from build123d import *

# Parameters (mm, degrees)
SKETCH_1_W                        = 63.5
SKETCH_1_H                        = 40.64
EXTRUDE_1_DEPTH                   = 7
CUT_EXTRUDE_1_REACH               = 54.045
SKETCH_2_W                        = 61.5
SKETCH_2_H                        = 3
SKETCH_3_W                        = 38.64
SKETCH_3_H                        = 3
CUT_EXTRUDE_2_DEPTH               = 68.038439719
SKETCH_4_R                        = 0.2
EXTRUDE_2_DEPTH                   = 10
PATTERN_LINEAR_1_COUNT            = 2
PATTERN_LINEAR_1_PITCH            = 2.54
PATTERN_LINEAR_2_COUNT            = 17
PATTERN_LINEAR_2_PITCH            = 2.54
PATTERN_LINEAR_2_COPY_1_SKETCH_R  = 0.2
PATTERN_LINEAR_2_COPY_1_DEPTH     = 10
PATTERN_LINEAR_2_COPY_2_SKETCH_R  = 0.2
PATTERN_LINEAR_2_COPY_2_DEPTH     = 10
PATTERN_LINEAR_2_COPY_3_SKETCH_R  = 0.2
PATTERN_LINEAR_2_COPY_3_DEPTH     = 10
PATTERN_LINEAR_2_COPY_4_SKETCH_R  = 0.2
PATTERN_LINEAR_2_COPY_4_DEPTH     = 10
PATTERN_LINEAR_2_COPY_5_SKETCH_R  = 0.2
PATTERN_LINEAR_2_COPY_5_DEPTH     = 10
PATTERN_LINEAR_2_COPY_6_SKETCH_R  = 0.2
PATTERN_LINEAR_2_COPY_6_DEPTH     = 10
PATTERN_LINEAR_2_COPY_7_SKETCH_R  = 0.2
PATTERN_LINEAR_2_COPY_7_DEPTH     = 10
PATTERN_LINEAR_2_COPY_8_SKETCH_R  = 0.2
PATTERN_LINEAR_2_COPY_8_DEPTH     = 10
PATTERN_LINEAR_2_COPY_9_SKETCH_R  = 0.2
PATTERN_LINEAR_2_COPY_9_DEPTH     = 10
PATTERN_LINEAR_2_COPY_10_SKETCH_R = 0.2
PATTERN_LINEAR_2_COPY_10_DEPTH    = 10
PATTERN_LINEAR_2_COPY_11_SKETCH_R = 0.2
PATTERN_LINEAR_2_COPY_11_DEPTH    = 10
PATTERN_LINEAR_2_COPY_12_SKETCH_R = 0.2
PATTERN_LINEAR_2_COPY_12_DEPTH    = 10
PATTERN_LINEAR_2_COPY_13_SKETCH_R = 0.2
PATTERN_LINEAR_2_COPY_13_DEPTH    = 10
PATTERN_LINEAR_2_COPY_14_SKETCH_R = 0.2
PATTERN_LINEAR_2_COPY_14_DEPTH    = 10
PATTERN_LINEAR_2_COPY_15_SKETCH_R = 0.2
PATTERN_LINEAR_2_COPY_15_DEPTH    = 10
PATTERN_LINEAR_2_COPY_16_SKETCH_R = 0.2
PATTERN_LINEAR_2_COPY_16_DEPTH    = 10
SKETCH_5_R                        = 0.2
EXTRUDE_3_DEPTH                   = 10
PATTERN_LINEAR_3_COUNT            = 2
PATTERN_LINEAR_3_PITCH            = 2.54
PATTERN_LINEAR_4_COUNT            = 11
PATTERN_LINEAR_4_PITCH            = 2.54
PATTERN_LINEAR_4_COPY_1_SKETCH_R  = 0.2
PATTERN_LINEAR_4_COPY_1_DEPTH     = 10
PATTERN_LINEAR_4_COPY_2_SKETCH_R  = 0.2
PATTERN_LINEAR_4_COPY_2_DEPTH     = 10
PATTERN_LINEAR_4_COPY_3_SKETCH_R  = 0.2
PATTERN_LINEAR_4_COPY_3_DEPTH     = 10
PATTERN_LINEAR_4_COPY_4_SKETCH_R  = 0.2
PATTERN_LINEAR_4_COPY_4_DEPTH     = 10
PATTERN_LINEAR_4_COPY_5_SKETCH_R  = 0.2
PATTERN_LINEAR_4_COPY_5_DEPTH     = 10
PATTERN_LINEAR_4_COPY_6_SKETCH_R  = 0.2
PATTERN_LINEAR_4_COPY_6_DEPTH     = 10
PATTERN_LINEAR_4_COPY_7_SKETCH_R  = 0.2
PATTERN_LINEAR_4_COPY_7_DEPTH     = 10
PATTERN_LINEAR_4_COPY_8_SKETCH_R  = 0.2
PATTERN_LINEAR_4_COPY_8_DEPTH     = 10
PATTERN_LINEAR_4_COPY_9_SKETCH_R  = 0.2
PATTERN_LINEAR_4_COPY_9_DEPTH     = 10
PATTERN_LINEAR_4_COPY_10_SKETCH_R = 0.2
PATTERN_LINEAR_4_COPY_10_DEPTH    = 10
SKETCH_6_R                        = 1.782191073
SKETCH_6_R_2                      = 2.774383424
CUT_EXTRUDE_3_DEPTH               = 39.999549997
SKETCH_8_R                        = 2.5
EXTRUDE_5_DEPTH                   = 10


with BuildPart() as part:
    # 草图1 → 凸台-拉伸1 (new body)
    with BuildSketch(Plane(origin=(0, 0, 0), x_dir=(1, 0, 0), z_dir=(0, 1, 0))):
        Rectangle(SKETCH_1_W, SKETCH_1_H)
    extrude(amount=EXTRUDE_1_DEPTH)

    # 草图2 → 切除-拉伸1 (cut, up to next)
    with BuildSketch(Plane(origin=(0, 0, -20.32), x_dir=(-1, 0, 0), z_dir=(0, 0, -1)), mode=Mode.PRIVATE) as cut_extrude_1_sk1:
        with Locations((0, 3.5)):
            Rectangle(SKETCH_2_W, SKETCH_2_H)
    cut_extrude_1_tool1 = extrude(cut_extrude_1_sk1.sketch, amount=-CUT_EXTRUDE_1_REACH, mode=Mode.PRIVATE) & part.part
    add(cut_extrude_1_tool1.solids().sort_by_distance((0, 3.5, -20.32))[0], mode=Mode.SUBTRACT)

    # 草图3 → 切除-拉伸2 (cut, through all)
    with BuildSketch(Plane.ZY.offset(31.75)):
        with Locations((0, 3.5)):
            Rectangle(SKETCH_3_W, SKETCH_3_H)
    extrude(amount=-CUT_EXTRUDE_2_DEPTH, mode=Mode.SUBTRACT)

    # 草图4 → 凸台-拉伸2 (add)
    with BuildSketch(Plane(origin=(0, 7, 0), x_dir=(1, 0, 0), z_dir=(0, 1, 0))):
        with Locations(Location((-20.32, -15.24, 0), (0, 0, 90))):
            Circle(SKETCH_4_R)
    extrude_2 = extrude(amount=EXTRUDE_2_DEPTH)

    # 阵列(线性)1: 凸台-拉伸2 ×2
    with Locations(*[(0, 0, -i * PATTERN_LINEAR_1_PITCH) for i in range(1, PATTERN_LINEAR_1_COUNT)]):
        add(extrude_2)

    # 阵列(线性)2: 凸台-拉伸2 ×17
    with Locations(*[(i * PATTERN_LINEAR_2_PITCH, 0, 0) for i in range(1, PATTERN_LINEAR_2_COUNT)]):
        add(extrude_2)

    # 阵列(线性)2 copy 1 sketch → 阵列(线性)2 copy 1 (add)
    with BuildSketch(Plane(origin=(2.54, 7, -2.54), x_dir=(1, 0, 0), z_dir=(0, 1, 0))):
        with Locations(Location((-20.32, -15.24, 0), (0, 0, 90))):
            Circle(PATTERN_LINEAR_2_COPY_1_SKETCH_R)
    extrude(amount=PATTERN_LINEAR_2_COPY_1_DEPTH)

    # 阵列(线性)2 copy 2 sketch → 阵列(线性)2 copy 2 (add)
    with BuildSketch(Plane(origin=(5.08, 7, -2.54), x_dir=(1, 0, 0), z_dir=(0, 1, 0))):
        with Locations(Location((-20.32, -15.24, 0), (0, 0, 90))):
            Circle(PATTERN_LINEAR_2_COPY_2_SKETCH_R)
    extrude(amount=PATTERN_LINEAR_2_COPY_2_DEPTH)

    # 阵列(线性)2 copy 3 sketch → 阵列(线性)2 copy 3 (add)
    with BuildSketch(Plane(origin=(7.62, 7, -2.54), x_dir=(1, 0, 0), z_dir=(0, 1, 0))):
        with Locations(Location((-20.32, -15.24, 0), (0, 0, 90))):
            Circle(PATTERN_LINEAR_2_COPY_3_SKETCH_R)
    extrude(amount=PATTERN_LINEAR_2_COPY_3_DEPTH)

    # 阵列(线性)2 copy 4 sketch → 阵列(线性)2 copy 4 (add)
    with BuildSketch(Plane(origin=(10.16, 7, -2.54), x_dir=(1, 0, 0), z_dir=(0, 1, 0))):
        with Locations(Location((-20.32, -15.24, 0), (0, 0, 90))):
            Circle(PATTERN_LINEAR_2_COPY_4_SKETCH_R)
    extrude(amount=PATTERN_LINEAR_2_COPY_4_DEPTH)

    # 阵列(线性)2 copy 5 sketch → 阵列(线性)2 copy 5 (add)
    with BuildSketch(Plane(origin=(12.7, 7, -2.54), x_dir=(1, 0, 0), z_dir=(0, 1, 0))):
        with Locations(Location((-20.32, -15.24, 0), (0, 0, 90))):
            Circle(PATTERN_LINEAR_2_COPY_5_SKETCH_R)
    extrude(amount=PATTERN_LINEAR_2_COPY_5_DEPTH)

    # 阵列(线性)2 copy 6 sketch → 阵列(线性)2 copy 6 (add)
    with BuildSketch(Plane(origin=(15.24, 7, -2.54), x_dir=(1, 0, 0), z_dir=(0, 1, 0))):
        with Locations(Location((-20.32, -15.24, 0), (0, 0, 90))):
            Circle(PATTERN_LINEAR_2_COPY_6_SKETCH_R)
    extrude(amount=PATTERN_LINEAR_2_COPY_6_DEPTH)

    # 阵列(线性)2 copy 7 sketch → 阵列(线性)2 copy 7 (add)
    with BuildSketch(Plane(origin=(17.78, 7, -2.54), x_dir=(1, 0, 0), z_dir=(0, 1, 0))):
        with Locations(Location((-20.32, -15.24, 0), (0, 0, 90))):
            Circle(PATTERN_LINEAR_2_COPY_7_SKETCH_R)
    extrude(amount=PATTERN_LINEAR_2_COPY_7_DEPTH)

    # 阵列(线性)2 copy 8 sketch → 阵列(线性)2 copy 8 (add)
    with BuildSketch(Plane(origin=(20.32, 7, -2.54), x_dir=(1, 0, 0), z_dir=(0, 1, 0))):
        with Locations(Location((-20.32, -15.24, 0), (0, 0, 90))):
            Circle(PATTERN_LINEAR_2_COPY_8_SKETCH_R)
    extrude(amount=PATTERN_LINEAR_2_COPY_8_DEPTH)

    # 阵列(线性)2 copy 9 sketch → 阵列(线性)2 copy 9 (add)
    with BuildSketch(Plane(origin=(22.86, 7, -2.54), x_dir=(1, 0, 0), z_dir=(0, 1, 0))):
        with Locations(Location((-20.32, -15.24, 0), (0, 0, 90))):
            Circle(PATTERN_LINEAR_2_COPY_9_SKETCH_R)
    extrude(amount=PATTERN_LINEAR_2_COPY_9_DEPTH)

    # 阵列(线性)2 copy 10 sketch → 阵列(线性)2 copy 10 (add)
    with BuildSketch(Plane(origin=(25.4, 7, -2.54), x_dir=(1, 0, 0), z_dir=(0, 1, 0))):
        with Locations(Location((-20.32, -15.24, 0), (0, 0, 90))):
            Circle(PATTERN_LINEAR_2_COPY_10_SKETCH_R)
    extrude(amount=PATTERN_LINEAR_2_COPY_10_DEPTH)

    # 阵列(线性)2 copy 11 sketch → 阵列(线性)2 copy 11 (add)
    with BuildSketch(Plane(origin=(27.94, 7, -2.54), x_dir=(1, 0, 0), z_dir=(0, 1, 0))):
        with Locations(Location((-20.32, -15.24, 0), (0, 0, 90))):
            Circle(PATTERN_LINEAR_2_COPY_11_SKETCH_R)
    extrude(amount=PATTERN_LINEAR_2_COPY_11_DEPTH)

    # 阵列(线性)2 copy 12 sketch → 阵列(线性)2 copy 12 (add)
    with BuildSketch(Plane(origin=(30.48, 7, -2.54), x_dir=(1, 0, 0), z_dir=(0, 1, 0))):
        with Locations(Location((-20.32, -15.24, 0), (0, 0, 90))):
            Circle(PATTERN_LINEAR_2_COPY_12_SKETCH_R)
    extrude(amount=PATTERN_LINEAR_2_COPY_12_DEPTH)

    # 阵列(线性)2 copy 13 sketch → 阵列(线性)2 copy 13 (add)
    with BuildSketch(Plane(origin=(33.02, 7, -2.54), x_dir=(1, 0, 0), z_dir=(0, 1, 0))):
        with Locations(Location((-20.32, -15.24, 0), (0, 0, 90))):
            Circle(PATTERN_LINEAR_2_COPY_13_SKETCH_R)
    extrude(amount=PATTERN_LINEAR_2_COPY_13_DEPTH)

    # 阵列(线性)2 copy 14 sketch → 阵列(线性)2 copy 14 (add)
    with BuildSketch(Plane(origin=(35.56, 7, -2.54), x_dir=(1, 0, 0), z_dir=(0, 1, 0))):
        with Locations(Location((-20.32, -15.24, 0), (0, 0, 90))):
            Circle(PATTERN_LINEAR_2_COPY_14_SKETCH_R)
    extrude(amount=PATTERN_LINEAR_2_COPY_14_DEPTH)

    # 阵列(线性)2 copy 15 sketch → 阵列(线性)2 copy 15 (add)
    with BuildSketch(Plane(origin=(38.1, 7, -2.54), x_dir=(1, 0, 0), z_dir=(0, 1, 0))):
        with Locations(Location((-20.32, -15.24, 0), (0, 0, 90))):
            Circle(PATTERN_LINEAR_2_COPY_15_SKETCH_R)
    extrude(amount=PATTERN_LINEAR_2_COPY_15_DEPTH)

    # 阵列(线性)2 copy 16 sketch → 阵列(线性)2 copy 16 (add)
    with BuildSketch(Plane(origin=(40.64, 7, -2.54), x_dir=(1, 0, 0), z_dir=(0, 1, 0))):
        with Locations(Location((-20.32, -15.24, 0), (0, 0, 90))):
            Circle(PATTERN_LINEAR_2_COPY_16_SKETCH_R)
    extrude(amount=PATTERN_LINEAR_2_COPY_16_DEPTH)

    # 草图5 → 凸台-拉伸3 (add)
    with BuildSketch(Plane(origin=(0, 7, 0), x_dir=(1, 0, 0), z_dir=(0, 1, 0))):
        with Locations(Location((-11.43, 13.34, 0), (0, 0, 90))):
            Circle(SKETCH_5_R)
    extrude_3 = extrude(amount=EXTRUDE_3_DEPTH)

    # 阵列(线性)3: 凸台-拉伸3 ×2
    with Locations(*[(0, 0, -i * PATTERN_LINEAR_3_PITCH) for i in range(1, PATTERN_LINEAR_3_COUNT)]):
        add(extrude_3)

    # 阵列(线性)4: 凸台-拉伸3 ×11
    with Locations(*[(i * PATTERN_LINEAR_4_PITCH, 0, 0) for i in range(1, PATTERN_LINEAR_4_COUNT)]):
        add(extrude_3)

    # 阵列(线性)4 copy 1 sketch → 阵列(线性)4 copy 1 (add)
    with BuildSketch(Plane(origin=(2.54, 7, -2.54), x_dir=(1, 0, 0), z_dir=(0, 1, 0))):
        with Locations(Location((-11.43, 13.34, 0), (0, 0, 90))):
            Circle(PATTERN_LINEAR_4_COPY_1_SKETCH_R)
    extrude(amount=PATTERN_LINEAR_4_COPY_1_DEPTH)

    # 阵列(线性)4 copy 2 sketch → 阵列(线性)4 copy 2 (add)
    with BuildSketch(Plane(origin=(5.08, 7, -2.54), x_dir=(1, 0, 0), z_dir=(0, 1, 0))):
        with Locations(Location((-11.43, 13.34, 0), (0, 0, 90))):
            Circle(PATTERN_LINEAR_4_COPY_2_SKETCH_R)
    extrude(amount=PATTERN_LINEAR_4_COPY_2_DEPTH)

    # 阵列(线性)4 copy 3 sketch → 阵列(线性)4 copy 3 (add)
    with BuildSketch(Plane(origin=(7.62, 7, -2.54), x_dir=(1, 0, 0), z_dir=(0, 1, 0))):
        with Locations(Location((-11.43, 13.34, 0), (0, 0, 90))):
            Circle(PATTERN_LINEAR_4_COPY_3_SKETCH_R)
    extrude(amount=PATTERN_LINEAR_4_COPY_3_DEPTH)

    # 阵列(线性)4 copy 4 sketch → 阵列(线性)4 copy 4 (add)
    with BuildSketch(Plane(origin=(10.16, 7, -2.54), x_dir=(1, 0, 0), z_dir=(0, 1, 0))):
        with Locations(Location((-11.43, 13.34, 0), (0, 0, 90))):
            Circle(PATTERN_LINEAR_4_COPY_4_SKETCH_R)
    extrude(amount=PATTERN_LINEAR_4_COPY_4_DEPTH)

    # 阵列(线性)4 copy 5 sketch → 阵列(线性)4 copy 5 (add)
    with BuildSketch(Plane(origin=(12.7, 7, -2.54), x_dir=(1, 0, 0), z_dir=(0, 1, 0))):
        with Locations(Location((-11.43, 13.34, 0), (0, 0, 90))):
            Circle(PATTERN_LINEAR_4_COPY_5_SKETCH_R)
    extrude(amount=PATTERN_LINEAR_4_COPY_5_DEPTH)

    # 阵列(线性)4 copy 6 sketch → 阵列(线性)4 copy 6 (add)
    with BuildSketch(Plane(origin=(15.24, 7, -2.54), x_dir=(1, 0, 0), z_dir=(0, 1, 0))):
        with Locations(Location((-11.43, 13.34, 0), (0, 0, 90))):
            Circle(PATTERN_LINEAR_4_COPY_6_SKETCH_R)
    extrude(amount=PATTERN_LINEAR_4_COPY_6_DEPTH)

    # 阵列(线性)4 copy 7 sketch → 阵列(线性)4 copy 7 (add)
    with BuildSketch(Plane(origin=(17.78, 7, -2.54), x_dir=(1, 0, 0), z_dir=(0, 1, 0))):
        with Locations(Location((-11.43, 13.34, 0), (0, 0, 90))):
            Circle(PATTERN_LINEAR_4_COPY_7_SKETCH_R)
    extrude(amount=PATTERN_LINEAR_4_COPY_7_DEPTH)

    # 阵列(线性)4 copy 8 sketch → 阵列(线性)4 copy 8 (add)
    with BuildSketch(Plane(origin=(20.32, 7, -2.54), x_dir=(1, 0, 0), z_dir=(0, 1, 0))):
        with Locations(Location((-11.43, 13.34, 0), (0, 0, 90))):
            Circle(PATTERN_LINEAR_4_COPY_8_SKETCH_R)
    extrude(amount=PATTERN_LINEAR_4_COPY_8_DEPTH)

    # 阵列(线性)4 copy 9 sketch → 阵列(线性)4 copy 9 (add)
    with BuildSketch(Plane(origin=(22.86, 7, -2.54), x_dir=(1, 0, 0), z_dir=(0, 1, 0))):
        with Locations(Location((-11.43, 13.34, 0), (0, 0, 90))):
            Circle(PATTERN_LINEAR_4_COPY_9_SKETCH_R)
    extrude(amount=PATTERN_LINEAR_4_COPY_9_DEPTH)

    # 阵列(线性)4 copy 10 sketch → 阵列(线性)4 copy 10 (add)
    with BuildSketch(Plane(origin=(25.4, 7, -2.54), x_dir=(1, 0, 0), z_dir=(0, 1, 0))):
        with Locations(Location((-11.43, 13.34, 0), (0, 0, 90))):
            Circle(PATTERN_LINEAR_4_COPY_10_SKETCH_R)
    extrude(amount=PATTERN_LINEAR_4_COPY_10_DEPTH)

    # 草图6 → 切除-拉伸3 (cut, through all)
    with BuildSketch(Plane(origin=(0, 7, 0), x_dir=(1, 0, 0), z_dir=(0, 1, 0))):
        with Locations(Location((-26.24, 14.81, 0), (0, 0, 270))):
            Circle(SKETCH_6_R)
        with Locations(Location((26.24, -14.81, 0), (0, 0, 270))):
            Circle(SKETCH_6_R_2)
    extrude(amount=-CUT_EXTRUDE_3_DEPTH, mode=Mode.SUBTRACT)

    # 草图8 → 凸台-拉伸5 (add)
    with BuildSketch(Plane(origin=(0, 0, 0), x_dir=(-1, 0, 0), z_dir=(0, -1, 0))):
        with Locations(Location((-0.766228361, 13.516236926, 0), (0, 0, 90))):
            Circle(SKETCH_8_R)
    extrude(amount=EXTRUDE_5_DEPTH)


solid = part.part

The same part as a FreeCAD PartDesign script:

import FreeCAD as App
import Part
import Sketcher
Q = App.Units.Quantity


def add_polygon(sketch, points):
    """Adds a closed chain of lines whose ends are joined by coincident constraints."""
    first, n = sketch.GeometryCount, len(points)
    for a, b in zip(points, points[1:] + points[:1]):
        sketch.addGeometry(Part.LineSegment(App.Vector(*a, 0), App.Vector(*b, 0)), False)
    for i in range(n):
        sketch.addConstraint(Sketcher.Constraint("Coincident", first + i, 2, first + (i + 1) % n, 1))

doc = App.newDocument("Part")
body = doc.addObject("PartDesign::Body", "Body")

sketch1 = body.newObject("Sketcher::SketchObject", "Sketch")
sketch1.AttachmentSupport = (doc.getObject("XZ_Plane"), [""])
sketch1.MapMode = "FlatFace"
add_polygon(sketch1, [(-31.75, -20.32), (-31.75, 20.32), (31.75, 20.32), (31.75, -20.32)])
sketch1.addConstraint(Sketcher.Constraint("Vertical", 0))
sketch1.addConstraint(Sketcher.Constraint("Horizontal", 1))
sketch1.addConstraint(Sketcher.Constraint("Vertical", 2))
sketch1.addConstraint(Sketcher.Constraint("Horizontal", 3))
sketch1.addConstraint(Sketcher.Constraint("Symmetric", 0, 2, 2, 2, -1, 1))
sketch1.addConstraint(Sketcher.Constraint("DistanceX", 1, 1, 1, 2, Q("63.5 mm")))
sketch1.addConstraint(Sketcher.Constraint("DistanceY", 0, 1, 0, 2, Q("40.64 mm")))
pad1 = body.newObject("PartDesign::Pad", "Pad")
pad1.Profile = sketch1
pad1.Length = 7
pad1.Reversed = True

sketch2 = body.newObject("Sketcher::SketchObject", "Sketch001")
sketch2.AttachmentSupport = (doc.getObject("XY_Plane"), [""])
sketch2.MapMode = "FlatFace"
sketch2.AttachmentOffset = App.Placement(App.Vector(0, 0, -20.32), App.Rotation())
add_polygon(sketch2, [(30.75, 5), (30.75, 2), (-30.75, 2), (-30.75, 5)])
sketch2.addConstraint(Sketcher.Constraint("Vertical", 0))
sketch2.addConstraint(Sketcher.Constraint("Horizontal", 1))
sketch2.addConstraint(Sketcher.Constraint("Vertical", 2))
sketch2.addConstraint(Sketcher.Constraint("Horizontal", 3))
sketch2.addConstraint(Sketcher.Constraint("DistanceY", 0, 2, 0, 1, Q("3 mm")))
sketch2.addConstraint(Sketcher.Constraint("DistanceX", 1, 2, 1, 1, Q("61.5 mm")))
sketch2.addConstraint(Sketcher.Constraint("DistanceY", -1, 1, 0, 2, Q("2 mm")))
sketch2.addConstraint(Sketcher.Constraint("DistanceX", -1, 1, 0, 2, Q("30.75 mm")))
pocket1 = body.newObject("PartDesign::Pocket", "Pocket")
pocket1.Profile = sketch2
pocket1.Type = "UpToFirst"
pocket1.Reversed = True

sketch3 = body.newObject("Sketcher::SketchObject", "Sketch002")
sketch3.AttachmentSupport = (doc.getObject("YZ_Plane"), [""])
sketch3.MapMode = "FlatFace"
sketch3.AttachmentOffset = App.Placement(App.Vector(0, 0, -31.75), App.Rotation())
add_polygon(sketch3, [(5, -19.32), (2, -19.32), (2, 19.32), (5, 19.32)])
sketch3.addConstraint(Sketcher.Constraint("Horizontal", 0))
sketch3.addConstraint(Sketcher.Constraint("Vertical", 1))
sketch3.addConstraint(Sketcher.Constraint("Horizontal", 2))
sketch3.addConstraint(Sketcher.Constraint("Vertical", 3))
sketch3.addConstraint(Sketcher.Constraint("DistanceX", 0, 2, 0, 1, Q("3 mm")))
sketch3.addConstraint(Sketcher.Constraint("DistanceX", -1, 1, 0, 2, Q("2 mm")))
sketch3.addConstraint(Sketcher.Constraint("DistanceY", 1, 1, 1, 2, Q("38.64 mm")))
sketch3.addConstraint(Sketcher.Constraint("DistanceY", 0, 2, -1, 1, Q("19.32 mm")))
pocket2 = body.newObject("PartDesign::Pocket", "Pocket001")
pocket2.Profile = sketch3
pocket2.Type = "ThroughAll"
pocket2.Reversed = True

sketch4 = body.newObject("Sketcher::SketchObject", "Sketch003")
sketch4.AttachmentSupport = (doc.getObject("XZ_Plane"), [""])
sketch4.MapMode = "FlatFace"
sketch4.AttachmentOffset = App.Placement(App.Vector(0, 0, -7), App.Rotation())
sketch4.addGeometry(Part.Circle(App.Vector(-20.32, 15.24, 0), App.Vector(0, 0, 1), 0.2), False)
sketch4.addConstraint(Sketcher.Constraint("Diameter", 0, Q("0.4 mm")))
sketch4.addConstraint(Sketcher.Constraint("DistanceX", 0, 3, -1, 1, Q("20.32 mm")))
sketch4.addConstraint(Sketcher.Constraint("DistanceY", -1, 1, 0, 3, Q("15.24 mm")))
pad2 = body.newObject("PartDesign::Pad", "Pad001")
pad2.Profile = sketch4
pad2.Length = 10
pad2.Reversed = True
doc.recompute()

linearpattern = body.newObject("PartDesign::LinearPattern", "LinearPattern")
linearpattern.Originals = [pad2]
linearpattern.Direction = (doc.getObject("Z_Axis"), [""])
linearpattern.Mode = "offset"
linearpattern.Offset = 2.54
linearpattern.Occurrences = 2
linearpattern.Reversed = True
body.Tip = linearpattern
doc.recompute()

linearpattern2 = body.newObject("PartDesign::LinearPattern", "LinearPattern001")
linearpattern2.Originals = [pad2]
linearpattern2.Direction = (doc.getObject("X_Axis"), [""])
linearpattern2.Mode = "offset"
linearpattern2.Offset = 2.54
linearpattern2.Occurrences = 17
body.Tip = linearpattern2

sketch5 = body.newObject("Sketcher::SketchObject", "Sketch004")
sketch5.AttachmentSupport = (doc.getObject("XZ_Plane"), [""])
sketch5.MapMode = "FlatFace"
sketch5.AttachmentOffset = App.Placement(App.Vector(0, 0, -7), App.Rotation())
sketch5.addGeometry(Part.Circle(App.Vector(-17.78, 12.7, 0), App.Vector(0, 0, 1), 0.2), False)
sketch5.addConstraint(Sketcher.Constraint("Diameter", 0, Q("0.4 mm")))
sketch5.addConstraint(Sketcher.Constraint("DistanceY", -1, 1, 0, 3, Q("12.7 mm")))
sketch5.addConstraint(Sketcher.Constraint("DistanceX", 0, 3, -1, 1, Q("17.78 mm")))
pad3 = body.newObject("PartDesign::Pad", "Pad002")
pad3.Profile = sketch5
pad3.Length = 10
pad3.Reversed = True

sketch6 = body.newObject("Sketcher::SketchObject", "Sketch005")
sketch6.AttachmentSupport = (doc.getObject("XZ_Plane"), [""])
sketch6.MapMode = "FlatFace"
sketch6.AttachmentOffset = App.Placement(App.Vector(0, 0, -7), App.Rotation())
sketch6.addGeometry(Part.Circle(App.Vector(-15.24, 12.7, 0), App.Vector(0, 0, 1), 0.2), False)
sketch6.addConstraint(Sketcher.Constraint("Diameter", 0, Q("0.4 mm")))
sketch6.addConstraint(Sketcher.Constraint("DistanceY", -1, 1, 0, 3, Q("12.7 mm")))
sketch6.addConstraint(Sketcher.Constraint("DistanceX", 0, 3, -1, 1, Q("15.24 mm")))
pad4 = body.newObject("PartDesign::Pad", "Pad003")
pad4.Profile = sketch6
pad4.Length = 10
pad4.Reversed = True

sketch7 = body.newObject("Sketcher::SketchObject", "Sketch006")
sketch7.AttachmentSupport = (doc.getObject("XZ_Plane"), [""])
sketch7.MapMode = "FlatFace"
sketch7.AttachmentOffset = App.Placement(App.Vector(0, 0, -7), App.Rotation())
sketch7.addGeometry(Part.Circle(App.Vector(-12.7, 12.7, 0), App.Vector(0, 0, 1), 0.2), False)
sketch7.addConstraint(Sketcher.Constraint("Diameter", 0, Q("0.4 mm")))
sketch7.addConstraint(Sketcher.Constraint("DistanceX", 0, 3, -1, 1, Q("12.7 mm")))
sketch7.addConstraint(Sketcher.Constraint("DistanceY", -1, 1, 0, 3, Q("12.7 mm")))
pad5 = body.newObject("PartDesign::Pad", "Pad004")
pad5.Profile = sketch7
pad5.Length = 10
pad5.Reversed = True

sketch8 = body.newObject("Sketcher::SketchObject", "Sketch007")
sketch8.AttachmentSupport = (doc.getObject("XZ_Plane"), [""])
sketch8.MapMode = "FlatFace"
sketch8.AttachmentOffset = App.Placement(App.Vector(0, 0, -7), App.Rotation())
sketch8.addGeometry(Part.Circle(App.Vector(-10.16, 12.7, 0), App.Vector(0, 0, 1), 0.2), False)
sketch8.addConstraint(Sketcher.Constraint("Diameter", 0, Q("0.4 mm")))
sketch8.addConstraint(Sketcher.Constraint("DistanceY", -1, 1, 0, 3, Q("12.7 mm")))
sketch8.addConstraint(Sketcher.Constraint("DistanceX", 0, 3, -1, 1, Q("10.16 mm")))
pad6 = body.newObject("PartDesign::Pad", "Pad005")
pad6.Profile = sketch8
pad6.Length = 10
pad6.Reversed = True

sketch9 = body.newObject("Sketcher::SketchObject", "Sketch008")
sketch9.AttachmentSupport = (doc.getObject("XZ_Plane"), [""])
sketch9.MapMode = "FlatFace"
sketch9.AttachmentOffset = App.Placement(App.Vector(0, 0, -7), App.Rotation())
sketch9.addGeometry(Part.Circle(App.Vector(-7.62, 12.7, 0), App.Vector(0, 0, 1), 0.2), False)
sketch9.addConstraint(Sketcher.Constraint("Diameter", 0, Q("0.4 mm")))
sketch9.addConstraint(Sketcher.Constraint("DistanceY", -1, 1, 0, 3, Q("12.7 mm")))
sketch9.addConstraint(Sketcher.Constraint("DistanceX", 0, 3, -1, 1, Q("7.62 mm")))
pad7 = body.newObject("PartDesign::Pad", "Pad006")
pad7.Profile = sketch9
pad7.Length = 10
pad7.Reversed = True

sketch10 = body.newObject("Sketcher::SketchObject", "Sketch009")
sketch10.AttachmentSupport = (doc.getObject("XZ_Plane"), [""])
sketch10.MapMode = "FlatFace"
sketch10.AttachmentOffset = App.Placement(App.Vector(0, 0, -7), App.Rotation())
sketch10.addGeometry(Part.Circle(App.Vector(-5.08, 12.7, 0), App.Vector(0, 0, 1), 0.2), False)
sketch10.addConstraint(Sketcher.Constraint("Diameter", 0, Q("0.4 mm")))
sketch10.addConstraint(Sketcher.Constraint("DistanceY", -1, 1, 0, 3, Q("12.7 mm")))
sketch10.addConstraint(Sketcher.Constraint("DistanceX", 0, 3, -1, 1, Q("5.08 mm")))
pad8 = body.newObject("PartDesign::Pad", "Pad007")
pad8.Profile = sketch10
pad8.Length = 10
pad8.Reversed = True

sketch11 = body.newObject("Sketcher::SketchObject", "Sketch010")
sketch11.AttachmentSupport = (doc.getObject("XZ_Plane"), [""])
sketch11.MapMode = "FlatFace"
sketch11.AttachmentOffset = App.Placement(App.Vector(0, 0, -7), App.Rotation())
sketch11.addGeometry(Part.Circle(App.Vector(-2.54, 12.7, 0), App.Vector(0, 0, 1), 0.2), False)
sketch11.addConstraint(Sketcher.Constraint("Diameter", 0, Q("0.4 mm")))
sketch11.addConstraint(Sketcher.Constraint("DistanceY", -1, 1, 0, 3, Q("12.7 mm")))
sketch11.addConstraint(Sketcher.Constraint("DistanceX", 0, 3, -1, 1, Q("2.54 mm")))
pad9 = body.newObject("PartDesign::Pad", "Pad008")
pad9.Profile = sketch11
pad9.Length = 10
pad9.Reversed = True

sketch12 = body.newObject("Sketcher::SketchObject", "Sketch011")
sketch12.AttachmentSupport = (doc.getObject("XZ_Plane"), [""])
sketch12.MapMode = "FlatFace"
sketch12.AttachmentOffset = App.Placement(App.Vector(0, 0, -7), App.Rotation())
sketch12.addGeometry(Part.Circle(App.Vector(0, 12.7, 0), App.Vector(0, 0, 1), 0.2), False)
sketch12.addConstraint(Sketcher.Constraint("PointOnObject", 0, 3, -2))
sketch12.addConstraint(Sketcher.Constraint("Diameter", 0, Q("0.4 mm")))
sketch12.addConstraint(Sketcher.Constraint("DistanceY", -1, 1, 0, 3, Q("12.7 mm")))
pad10 = body.newObject("PartDesign::Pad", "Pad009")
pad10.Profile = sketch12
pad10.Length = 10
pad10.Reversed = True

sketch13 = body.newObject("Sketcher::SketchObject", "Sketch012")
sketch13.AttachmentSupport = (doc.getObject("XZ_Plane"), [""])
sketch13.MapMode = "FlatFace"
sketch13.AttachmentOffset = App.Placement(App.Vector(0, 0, -7), App.Rotation())
sketch13.addGeometry(Part.Circle(App.Vector(2.54, 12.7, 0), App.Vector(0, 0, 1), 0.2), False)
sketch13.addConstraint(Sketcher.Constraint("Diameter", 0, Q("0.4 mm")))
sketch13.addConstraint(Sketcher.Constraint("DistanceY", -1, 1, 0, 3, Q("12.7 mm")))
sketch13.addConstraint(Sketcher.Constraint("DistanceX", -1, 1, 0, 3, Q("2.54 mm")))
pad11 = body.newObject("PartDesign::Pad", "Pad010")
pad11.Profile = sketch13
pad11.Length = 10
pad11.Reversed = True

sketch14 = body.newObject("Sketcher::SketchObject", "Sketch013")
sketch14.AttachmentSupport = (doc.getObject("XZ_Plane"), [""])
sketch14.MapMode = "FlatFace"
sketch14.AttachmentOffset = App.Placement(App.Vector(0, 0, -7), App.Rotation())
sketch14.addGeometry(Part.Circle(App.Vector(5.08, 12.7, 0), App.Vector(0, 0, 1), 0.2), False)
sketch14.addConstraint(Sketcher.Constraint("Diameter", 0, Q("0.4 mm")))
sketch14.addConstraint(Sketcher.Constraint("DistanceY", -1, 1, 0, 3, Q("12.7 mm")))
sketch14.addConstraint(Sketcher.Constraint("DistanceX", -1, 1, 0, 3, Q("5.08 mm")))
pad12 = body.newObject("PartDesign::Pad", "Pad011")
pad12.Profile = sketch14
pad12.Length = 10
pad12.Reversed = True

sketch15 = body.newObject("Sketcher::SketchObject", "Sketch014")
sketch15.AttachmentSupport = (doc.getObject("XZ_Plane"), [""])
sketch15.MapMode = "FlatFace"
sketch15.AttachmentOffset = App.Placement(App.Vector(0, 0, -7), App.Rotation())
sketch15.addGeometry(Part.Circle(App.Vector(7.62, 12.7, 0), App.Vector(0, 0, 1), 0.2), False)
sketch15.addConstraint(Sketcher.Constraint("Diameter", 0, Q("0.4 mm")))
sketch15.addConstraint(Sketcher.Constraint("DistanceY", -1, 1, 0, 3, Q("12.7 mm")))
sketch15.addConstraint(Sketcher.Constraint("DistanceX", -1, 1, 0, 3, Q("7.62 mm")))
pad13 = body.newObject("PartDesign::Pad", "Pad012")
pad13.Profile = sketch15
pad13.Length = 10
pad13.Reversed = True

sketch16 = body.newObject("Sketcher::SketchObject", "Sketch015")
sketch16.AttachmentSupport = (doc.getObject("XZ_Plane"), [""])
sketch16.MapMode = "FlatFace"
sketch16.AttachmentOffset = App.Placement(App.Vector(0, 0, -7), App.Rotation())
sketch16.addGeometry(Part.Circle(App.Vector(10.16, 12.7, 0), App.Vector(0, 0, 1), 0.2), False)
sketch16.addConstraint(Sketcher.Constraint("Diameter", 0, Q("0.4 mm")))
sketch16.addConstraint(Sketcher.Constraint("DistanceY", -1, 1, 0, 3, Q("12.7 mm")))
sketch16.addConstraint(Sketcher.Constraint("DistanceX", -1, 1, 0, 3, Q("10.16 mm")))
pad14 = body.newObject("PartDesign::Pad", "Pad013")
pad14.Profile = sketch16
pad14.Length = 10
pad14.Reversed = True

sketch17 = body.newObject("Sketcher::SketchObject", "Sketch016")
sketch17.AttachmentSupport = (doc.getObject("XZ_Plane"), [""])
sketch17.MapMode = "FlatFace"
sketch17.AttachmentOffset = App.Placement(App.Vector(0, 0, -7), App.Rotation())
sketch17.addGeometry(Part.Circle(App.Vector(12.7, 12.7, 0), App.Vector(0, 0, 1), 0.2), False)
sketch17.addConstraint(Sketcher.Constraint("Diameter", 0, Q("0.4 mm")))
sketch17.addConstraint(Sketcher.Constraint("DistanceX", -1, 1, 0, 3, Q("12.7 mm")))
sketch17.addConstraint(Sketcher.Constraint("DistanceY", -1, 1, 0, 3, Q("12.7 mm")))
pad15 = body.newObject("PartDesign::Pad", "Pad014")
pad15.Profile = sketch17
pad15.Length = 10
pad15.Reversed = True

sketch18 = body.newObject("Sketcher::SketchObject", "Sketch017")
sketch18.AttachmentSupport = (doc.getObject("XZ_Plane"), [""])
sketch18.MapMode = "FlatFace"
sketch18.AttachmentOffset = App.Placement(App.Vector(0, 0, -7), App.Rotation())
sketch18.addGeometry(Part.Circle(App.Vector(15.24, 12.7, 0), App.Vector(0, 0, 1), 0.2), False)
sketch18.addConstraint(Sketcher.Constraint("Diameter", 0, Q("0.4 mm")))
sketch18.addConstraint(Sketcher.Constraint("DistanceY", -1, 1, 0, 3, Q("12.7 mm")))
sketch18.addConstraint(Sketcher.Constraint("DistanceX", -1, 1, 0, 3, Q("15.24 mm")))
pad16 = body.newObject("PartDesign::Pad", "Pad015")
pad16.Profile = sketch18
pad16.Length = 10
pad16.Reversed = True

sketch19 = body.newObject("Sketcher::SketchObject", "Sketch018")
sketch19.AttachmentSupport = (doc.getObject("XZ_Plane"), [""])
sketch19.MapMode = "FlatFace"
sketch19.AttachmentOffset = App.Placement(App.Vector(0, 0, -7), App.Rotation())
sketch19.addGeometry(Part.Circle(App.Vector(17.78, 12.7, 0), App.Vector(0, 0, 1), 0.2), False)
sketch19.addConstraint(Sketcher.Constraint("Diameter", 0, Q("0.4 mm")))
sketch19.addConstraint(Sketcher.Constraint("DistanceY", -1, 1, 0, 3, Q("12.7 mm")))
sketch19.addConstraint(Sketcher.Constraint("DistanceX", -1, 1, 0, 3, Q("17.78 mm")))
pad17 = body.newObject("PartDesign::Pad", "Pad016")
pad17.Profile = sketch19
pad17.Length = 10
pad17.Reversed = True

sketch20 = body.newObject("Sketcher::SketchObject", "Sketch019")
sketch20.AttachmentSupport = (doc.getObject("XZ_Plane"), [""])
sketch20.MapMode = "FlatFace"
sketch20.AttachmentOffset = App.Placement(App.Vector(0, 0, -7), App.Rotation())
sketch20.addGeometry(Part.Circle(App.Vector(20.32, 12.7, 0), App.Vector(0, 0, 1), 0.2), False)
sketch20.addConstraint(Sketcher.Constraint("Diameter", 0, Q("0.4 mm")))
sketch20.addConstraint(Sketcher.Constraint("DistanceY", -1, 1, 0, 3, Q("12.7 mm")))
sketch20.addConstraint(Sketcher.Constraint("DistanceX", -1, 1, 0, 3, Q("20.32 mm")))
pad18 = body.newObject("PartDesign::Pad", "Pad017")
pad18.Profile = sketch20
pad18.Length = 10
pad18.Reversed = True

sketch21 = body.newObject("Sketcher::SketchObject", "Sketch020")
sketch21.AttachmentSupport = (doc.getObject("XZ_Plane"), [""])
sketch21.MapMode = "FlatFace"
sketch21.AttachmentOffset = App.Placement(App.Vector(0, 0, -7), App.Rotation())
sketch21.addGeometry(Part.Circle(App.Vector(-11.43, -13.34, 0), App.Vector(0, 0, 1), 0.2), False)
sketch21.addConstraint(Sketcher.Constraint("Diameter", 0, Q("0.4 mm")))
sketch21.addConstraint(Sketcher.Constraint("DistanceX", 0, 3, -1, 1, Q("11.43 mm")))
sketch21.addConstraint(Sketcher.Constraint("DistanceY", 0, 3, -1, 1, Q("13.34 mm")))
pad19 = body.newObject("PartDesign::Pad", "Pad018")
pad19.Profile = sketch21
pad19.Length = 10
pad19.Reversed = True
doc.recompute()

linearpattern3 = body.newObject("PartDesign::LinearPattern", "LinearPattern002")
linearpattern3.Originals = [pad19]
linearpattern3.Direction = (doc.getObject("Z_Axis"), [""])
linearpattern3.Mode = "offset"
linearpattern3.Offset = 2.54
linearpattern3.Occurrences = 2
linearpattern3.Reversed = True
body.Tip = linearpattern3
doc.recompute()

linearpattern4 = body.newObject("PartDesign::LinearPattern", "LinearPattern003")
linearpattern4.Originals = [pad19]
linearpattern4.Direction = (doc.getObject("X_Axis"), [""])
linearpattern4.Mode = "offset"
linearpattern4.Offset = 2.54
linearpattern4.Occurrences = 11
body.Tip = linearpattern4

sketch22 = body.newObject("Sketcher::SketchObject", "Sketch021")
sketch22.AttachmentSupport = (doc.getObject("XZ_Plane"), [""])
sketch22.MapMode = "FlatFace"
sketch22.AttachmentOffset = App.Placement(App.Vector(0, 0, -7), App.Rotation())
sketch22.addGeometry(Part.Circle(App.Vector(-8.89, -15.88, 0), App.Vector(0, 0, 1), 0.2), False)
sketch22.addConstraint(Sketcher.Constraint("Diameter", 0, Q("0.4 mm")))
sketch22.addConstraint(Sketcher.Constraint("DistanceX", 0, 3, -1, 1, Q("8.89 mm")))
sketch22.addConstraint(Sketcher.Constraint("DistanceY", 0, 3, -1, 1, Q("15.88 mm")))
pad20 = body.newObject("PartDesign::Pad", "Pad019")
pad20.Profile = sketch22
pad20.Length = 10
pad20.Reversed = True

sketch23 = body.newObject("Sketcher::SketchObject", "Sketch022")
sketch23.AttachmentSupport = (doc.getObject("XZ_Plane"), [""])
sketch23.MapMode = "FlatFace"
sketch23.AttachmentOffset = App.Placement(App.Vector(0, 0, -7), App.Rotation())
sketch23.addGeometry(Part.Circle(App.Vector(-6.35, -15.88, 0), App.Vector(0, 0, 1), 0.2), False)
sketch23.addConstraint(Sketcher.Constraint("Diameter", 0, Q("0.4 mm")))
sketch23.addConstraint(Sketcher.Constraint("DistanceX", 0, 3, -1, 1, Q("6.35 mm")))
sketch23.addConstraint(Sketcher.Constraint("DistanceY", 0, 3, -1, 1, Q("15.88 mm")))
pad21 = body.newObject("PartDesign::Pad", "Pad020")
pad21.Profile = sketch23
pad21.Length = 10
pad21.Reversed = True

sketch24 = body.newObject("Sketcher::SketchObject", "Sketch023")
sketch24.AttachmentSupport = (doc.getObject("XZ_Plane"), [""])
sketch24.MapMode = "FlatFace"
sketch24.AttachmentOffset = App.Placement(App.Vector(0, 0, -7), App.Rotation())
sketch24.addGeometry(Part.Circle(App.Vector(-3.81, -15.88, 0), App.Vector(0, 0, 1), 0.2), False)
sketch24.addConstraint(Sketcher.Constraint("Diameter", 0, Q("0.4 mm")))
sketch24.addConstraint(Sketcher.Constraint("DistanceX", 0, 3, -1, 1, Q("3.81 mm")))
sketch24.addConstraint(Sketcher.Constraint("DistanceY", 0, 3, -1, 1, Q("15.88 mm")))
pad22 = body.newObject("PartDesign::Pad", "Pad021")
pad22.Profile = sketch24
pad22.Length = 10
pad22.Reversed = True

sketch25 = body.newObject("Sketcher::SketchObject", "Sketch024")
sketch25.AttachmentSupport = (doc.getObject("XZ_Plane"), [""])
sketch25.MapMode = "FlatFace"
sketch25.AttachmentOffset = App.Placement(App.Vector(0, 0, -7), App.Rotation())
sketch25.addGeometry(Part.Circle(App.Vector(-1.27, -15.88, 0), App.Vector(0, 0, 1), 0.2), False)
sketch25.addConstraint(Sketcher.Constraint("Diameter", 0, Q("0.4 mm")))
sketch25.addConstraint(Sketcher.Constraint("DistanceX", 0, 3, -1, 1, Q("1.27 mm")))
sketch25.addConstraint(Sketcher.Constraint("DistanceY", 0, 3, -1, 1, Q("15.88 mm")))
pad23 = body.newObject("PartDesign::Pad", "Pad022")
pad23.Profile = sketch25
pad23.Length = 10
pad23.Reversed = True

sketch26 = body.newObject("Sketcher::SketchObject", "Sketch025")
sketch26.AttachmentSupport = (doc.getObject("XZ_Plane"), [""])
sketch26.MapMode = "FlatFace"
sketch26.AttachmentOffset = App.Placement(App.Vector(0, 0, -7), App.Rotation())
sketch26.addGeometry(Part.Circle(App.Vector(1.27, -15.88, 0), App.Vector(0, 0, 1), 0.2), False)
sketch26.addConstraint(Sketcher.Constraint("Diameter", 0, Q("0.4 mm")))
sketch26.addConstraint(Sketcher.Constraint("DistanceX", -1, 1, 0, 3, Q("1.27 mm")))
sketch26.addConstraint(Sketcher.Constraint("DistanceY", 0, 3, -1, 1, Q("15.88 mm")))
pad24 = body.newObject("PartDesign::Pad", "Pad023")
pad24.Profile = sketch26
pad24.Length = 10
pad24.Reversed = True

sketch27 = body.newObject("Sketcher::SketchObject", "Sketch026")
sketch27.AttachmentSupport = (doc.getObject("XZ_Plane"), [""])
sketch27.MapMode = "FlatFace"
sketch27.AttachmentOffset = App.Placement(App.Vector(0, 0, -7), App.Rotation())
sketch27.addGeometry(Part.Circle(App.Vector(3.81, -15.88, 0), App.Vector(0, 0, 1), 0.2), False)
sketch27.addConstraint(Sketcher.Constraint("Diameter", 0, Q("0.4 mm")))
sketch27.addConstraint(Sketcher.Constraint("DistanceX", -1, 1, 0, 3, Q("3.81 mm")))
sketch27.addConstraint(Sketcher.Constraint("DistanceY", 0, 3, -1, 1, Q("15.88 mm")))
pad25 = body.newObject("PartDesign::Pad", "Pad024")
pad25.Profile = sketch27
pad25.Length = 10
pad25.Reversed = True

sketch28 = body.newObject("Sketcher::SketchObject", "Sketch027")
sketch28.AttachmentSupport = (doc.getObject("XZ_Plane"), [""])
sketch28.MapMode = "FlatFace"
sketch28.AttachmentOffset = App.Placement(App.Vector(0, 0, -7), App.Rotation())
sketch28.addGeometry(Part.Circle(App.Vector(6.35, -15.88, 0), App.Vector(0, 0, 1), 0.2), False)
sketch28.addConstraint(Sketcher.Constraint("Diameter", 0, Q("0.4 mm")))
sketch28.addConstraint(Sketcher.Constraint("DistanceX", -1, 1, 0, 3, Q("6.35 mm")))
sketch28.addConstraint(Sketcher.Constraint("DistanceY", 0, 3, -1, 1, Q("15.88 mm")))
pad26 = body.newObject("PartDesign::Pad", "Pad025")
pad26.Profile = sketch28
pad26.Length = 10
pad26.Reversed = True

sketch29 = body.newObject("Sketcher::SketchObject", "Sketch028")
sketch29.AttachmentSupport = (doc.getObject("XZ_Plane"), [""])
sketch29.MapMode = "FlatFace"
sketch29.AttachmentOffset = App.Placement(App.Vector(0, 0, -7), App.Rotation())
sketch29.addGeometry(Part.Circle(App.Vector(8.89, -15.88, 0), App.Vector(0, 0, 1), 0.2), False)
sketch29.addConstraint(Sketcher.Constraint("Diameter", 0, Q("0.4 mm")))
sketch29.addConstraint(Sketcher.Constraint("DistanceX", -1, 1, 0, 3, Q("8.89 mm")))
sketch29.addConstraint(Sketcher.Constraint("DistanceY", 0, 3, -1, 1, Q("15.88 mm")))
pad27 = body.newObject("PartDesign::Pad", "Pad026")
pad27.Profile = sketch29
pad27.Length = 10
pad27.Reversed = True

sketch30 = body.newObject("Sketcher::SketchObject", "Sketch029")
sketch30.AttachmentSupport = (doc.getObject("XZ_Plane"), [""])
sketch30.MapMode = "FlatFace"
sketch30.AttachmentOffset = App.Placement(App.Vector(0, 0, -7), App.Rotation())
sketch30.addGeometry(Part.Circle(App.Vector(11.43, -15.88, 0), App.Vector(0, 0, 1), 0.2), False)
sketch30.addConstraint(Sketcher.Constraint("Diameter", 0, Q("0.4 mm")))
sketch30.addConstraint(Sketcher.Constraint("DistanceX", -1, 1, 0, 3, Q("11.43 mm")))
sketch30.addConstraint(Sketcher.Constraint("DistanceY", 0, 3, -1, 1, Q("15.88 mm")))
pad28 = body.newObject("PartDesign::Pad", "Pad027")
pad28.Profile = sketch30
pad28.Length = 10
pad28.Reversed = True

sketch31 = body.newObject("Sketcher::SketchObject", "Sketch030")
sketch31.AttachmentSupport = (doc.getObject("XZ_Plane"), [""])
sketch31.MapMode = "FlatFace"
sketch31.AttachmentOffset = App.Placement(App.Vector(0, 0, -7), App.Rotation())
sketch31.addGeometry(Part.Circle(App.Vector(13.97, -15.88, 0), App.Vector(0, 0, 1), 0.2), False)
sketch31.addConstraint(Sketcher.Constraint("Diameter", 0, Q("0.4 mm")))
sketch31.addConstraint(Sketcher.Constraint("DistanceX", -1, 1, 0, 3, Q("13.97 mm")))
sketch31.addConstraint(Sketcher.Constraint("DistanceY", 0, 3, -1, 1, Q("15.88 mm")))
pad29 = body.newObject("PartDesign::Pad", "Pad028")
pad29.Profile = sketch31
pad29.Length = 10
pad29.Reversed = True

sketch32 = body.newObject("Sketcher::SketchObject", "Sketch031")
sketch32.AttachmentSupport = (doc.getObject("XZ_Plane"), [""])
sketch32.MapMode = "FlatFace"
sketch32.AttachmentOffset = App.Placement(App.Vector(0, 0, -7), App.Rotation())
sketch32.addGeometry(Part.Circle(App.Vector(-26.24, -14.81, 0), App.Vector(0, 0, 1), 1.782191), False)
sketch32.addGeometry(Part.Circle(App.Vector(26.24, 14.81, 0), App.Vector(0, 0, 1), 2.774383), False)
sketch32.addConstraint(Sketcher.Constraint("Symmetric", 0, 3, 1, 3, -1, 1))
sketch32.addConstraint(Sketcher.Constraint("DistanceX", 0, 3, -1, 1, Q("26.24 mm")))
sketch32.addConstraint(Sketcher.Constraint("DistanceY", 0, 3, -1, 1, Q("14.81 mm")))
sketch32.addConstraint(Sketcher.Constraint("Diameter", 0, Q("3.564382 mm")))
sketch32.addConstraint(Sketcher.Constraint("Diameter", 1, Q("5.548767 mm")))
pocket3 = body.newObject("PartDesign::Pocket", "Pocket002")
pocket3.Profile = sketch32
pocket3.Type = "ThroughAll"
pocket3.Reversed = True

sketch33 = body.newObject("Sketcher::SketchObject", "Sketch032")
sketch33.AttachmentSupport = (doc.getObject("XZ_Plane"), [""])
sketch33.MapMode = "FlatFace"
sketch33.addGeometry(Part.Circle(App.Vector(0.766228, -13.516237, 0), App.Vector(0, 0, 1), 2.5), False)
sketch33.addConstraint(Sketcher.Constraint("Diameter", 0, Q("5 mm")))
sketch33.addConstraint(Sketcher.Constraint("DistanceX", -1, 1, 0, 3, Q("0.766228 mm")))
sketch33.addConstraint(Sketcher.Constraint("DistanceY", 0, 3, -1, 1, Q("13.516237 mm")))
pad30 = body.newObject("PartDesign::Pad", "Pad029")
pad30.Profile = sketch33
pad30.Length = 10

doc.recompute()
